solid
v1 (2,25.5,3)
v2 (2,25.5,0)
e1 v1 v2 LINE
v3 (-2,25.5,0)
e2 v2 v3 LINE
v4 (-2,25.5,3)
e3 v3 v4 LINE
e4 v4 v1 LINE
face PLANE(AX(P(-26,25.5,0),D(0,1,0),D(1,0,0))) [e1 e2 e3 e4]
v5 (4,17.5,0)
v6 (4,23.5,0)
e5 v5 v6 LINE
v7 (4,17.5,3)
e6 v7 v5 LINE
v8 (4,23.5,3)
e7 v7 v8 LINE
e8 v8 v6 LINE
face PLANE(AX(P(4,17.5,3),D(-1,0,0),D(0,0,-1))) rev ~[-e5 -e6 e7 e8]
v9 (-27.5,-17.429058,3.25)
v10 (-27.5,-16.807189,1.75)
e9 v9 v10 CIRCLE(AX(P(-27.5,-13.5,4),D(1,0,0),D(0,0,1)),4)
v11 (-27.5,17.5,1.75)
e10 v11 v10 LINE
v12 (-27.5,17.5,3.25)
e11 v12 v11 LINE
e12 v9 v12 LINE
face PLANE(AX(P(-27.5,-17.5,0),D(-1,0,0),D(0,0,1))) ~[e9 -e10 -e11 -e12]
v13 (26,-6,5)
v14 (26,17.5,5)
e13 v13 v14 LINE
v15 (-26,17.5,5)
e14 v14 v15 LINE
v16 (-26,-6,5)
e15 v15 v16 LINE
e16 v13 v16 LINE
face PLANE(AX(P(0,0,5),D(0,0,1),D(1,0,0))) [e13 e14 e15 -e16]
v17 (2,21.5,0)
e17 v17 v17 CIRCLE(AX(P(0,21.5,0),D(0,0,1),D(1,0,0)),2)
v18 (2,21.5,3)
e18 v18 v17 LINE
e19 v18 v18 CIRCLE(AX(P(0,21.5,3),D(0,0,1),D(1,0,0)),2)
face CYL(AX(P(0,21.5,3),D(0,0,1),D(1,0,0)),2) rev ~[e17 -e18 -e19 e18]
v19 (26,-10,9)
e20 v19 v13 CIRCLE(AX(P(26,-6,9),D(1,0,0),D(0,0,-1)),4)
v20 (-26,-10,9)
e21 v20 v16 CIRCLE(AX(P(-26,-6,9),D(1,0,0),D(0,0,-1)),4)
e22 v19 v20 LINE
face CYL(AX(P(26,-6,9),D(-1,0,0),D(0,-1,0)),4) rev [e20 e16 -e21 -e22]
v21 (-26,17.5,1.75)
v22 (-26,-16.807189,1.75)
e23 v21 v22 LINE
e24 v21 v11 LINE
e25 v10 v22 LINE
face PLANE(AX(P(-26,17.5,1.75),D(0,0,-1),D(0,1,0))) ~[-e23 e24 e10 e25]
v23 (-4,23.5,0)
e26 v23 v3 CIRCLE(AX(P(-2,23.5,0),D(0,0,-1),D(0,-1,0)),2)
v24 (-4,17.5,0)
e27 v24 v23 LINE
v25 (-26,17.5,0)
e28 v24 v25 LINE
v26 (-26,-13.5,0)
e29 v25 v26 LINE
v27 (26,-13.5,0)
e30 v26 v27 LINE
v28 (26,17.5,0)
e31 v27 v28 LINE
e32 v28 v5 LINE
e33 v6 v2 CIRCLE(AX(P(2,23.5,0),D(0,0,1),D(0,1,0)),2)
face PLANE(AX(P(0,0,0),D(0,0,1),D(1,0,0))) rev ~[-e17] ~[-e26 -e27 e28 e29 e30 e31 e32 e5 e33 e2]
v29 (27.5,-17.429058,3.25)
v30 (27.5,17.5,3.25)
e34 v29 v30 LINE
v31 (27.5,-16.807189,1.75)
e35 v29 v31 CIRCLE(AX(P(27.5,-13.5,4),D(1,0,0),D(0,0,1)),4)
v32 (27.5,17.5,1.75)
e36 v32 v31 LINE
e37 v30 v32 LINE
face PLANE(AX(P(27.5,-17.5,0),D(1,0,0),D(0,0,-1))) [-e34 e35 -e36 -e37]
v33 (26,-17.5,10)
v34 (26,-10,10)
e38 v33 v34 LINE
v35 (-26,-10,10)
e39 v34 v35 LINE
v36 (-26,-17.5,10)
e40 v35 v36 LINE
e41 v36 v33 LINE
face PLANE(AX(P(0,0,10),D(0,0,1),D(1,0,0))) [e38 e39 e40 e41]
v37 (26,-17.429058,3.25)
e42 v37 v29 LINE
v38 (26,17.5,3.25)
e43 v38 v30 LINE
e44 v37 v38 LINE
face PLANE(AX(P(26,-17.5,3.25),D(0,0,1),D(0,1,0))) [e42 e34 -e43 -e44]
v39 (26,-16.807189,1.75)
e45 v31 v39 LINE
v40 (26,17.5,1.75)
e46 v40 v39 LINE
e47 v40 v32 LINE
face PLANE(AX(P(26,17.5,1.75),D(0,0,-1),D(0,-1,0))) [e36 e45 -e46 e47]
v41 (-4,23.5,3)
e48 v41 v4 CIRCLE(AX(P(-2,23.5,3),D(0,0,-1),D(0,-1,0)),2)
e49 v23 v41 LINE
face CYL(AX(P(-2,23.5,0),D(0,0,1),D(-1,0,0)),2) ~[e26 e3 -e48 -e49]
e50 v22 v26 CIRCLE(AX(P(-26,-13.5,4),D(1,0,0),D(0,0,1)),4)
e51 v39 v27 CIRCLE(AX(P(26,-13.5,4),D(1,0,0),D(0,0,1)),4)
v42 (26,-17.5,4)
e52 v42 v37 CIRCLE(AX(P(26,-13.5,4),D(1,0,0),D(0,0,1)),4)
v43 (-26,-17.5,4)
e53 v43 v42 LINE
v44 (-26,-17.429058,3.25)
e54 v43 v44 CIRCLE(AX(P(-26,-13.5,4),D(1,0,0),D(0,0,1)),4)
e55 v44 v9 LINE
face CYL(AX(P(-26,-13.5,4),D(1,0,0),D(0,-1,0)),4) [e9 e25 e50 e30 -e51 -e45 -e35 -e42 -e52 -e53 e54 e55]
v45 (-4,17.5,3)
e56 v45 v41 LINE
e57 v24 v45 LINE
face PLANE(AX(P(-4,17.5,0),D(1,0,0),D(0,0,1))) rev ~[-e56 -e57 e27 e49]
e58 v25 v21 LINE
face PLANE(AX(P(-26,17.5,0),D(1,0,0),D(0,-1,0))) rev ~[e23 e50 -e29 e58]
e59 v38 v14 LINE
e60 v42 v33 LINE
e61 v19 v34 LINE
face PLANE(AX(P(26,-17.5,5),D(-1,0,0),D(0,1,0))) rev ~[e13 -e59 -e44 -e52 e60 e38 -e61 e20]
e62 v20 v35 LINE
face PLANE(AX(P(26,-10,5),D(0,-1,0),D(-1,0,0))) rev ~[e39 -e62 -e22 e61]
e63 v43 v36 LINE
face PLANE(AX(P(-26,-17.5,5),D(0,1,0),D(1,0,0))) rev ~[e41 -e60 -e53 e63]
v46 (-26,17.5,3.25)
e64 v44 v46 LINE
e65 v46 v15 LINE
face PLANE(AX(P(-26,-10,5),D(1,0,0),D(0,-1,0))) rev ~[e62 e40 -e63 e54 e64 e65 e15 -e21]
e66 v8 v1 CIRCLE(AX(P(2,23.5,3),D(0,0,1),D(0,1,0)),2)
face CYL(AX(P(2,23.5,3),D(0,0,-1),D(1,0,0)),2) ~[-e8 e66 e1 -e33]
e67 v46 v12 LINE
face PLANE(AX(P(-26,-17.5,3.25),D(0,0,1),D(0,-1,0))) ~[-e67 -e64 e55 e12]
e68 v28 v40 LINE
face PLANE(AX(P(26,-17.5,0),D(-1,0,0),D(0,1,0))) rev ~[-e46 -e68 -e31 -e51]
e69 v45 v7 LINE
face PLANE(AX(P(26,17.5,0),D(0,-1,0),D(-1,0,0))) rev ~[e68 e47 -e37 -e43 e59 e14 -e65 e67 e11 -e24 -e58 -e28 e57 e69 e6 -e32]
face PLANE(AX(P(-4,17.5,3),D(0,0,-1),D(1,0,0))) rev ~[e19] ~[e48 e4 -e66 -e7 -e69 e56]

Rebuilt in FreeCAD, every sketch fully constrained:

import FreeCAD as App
import Part
import Sketcher

V = App.Vector
Q = App.Units.Quantity


def edges_at(feature, points):
    """Names of the edges that pass closest to the given points."""
    edges = feature.Shape.Edges
    near = lambda p: min(range(len(edges)), key=lambda i: edges[i].distToShape(Part.Vertex(*p))[0])
    return sorted({f"Edge{near(p) + 1}" for p in points})

doc = App.newDocument("Part")
body = doc.addObject("PartDesign::Body", "Body")

sketch1 = body.newObject("Sketcher::SketchObject", "Sketch")
sketch1.AttachmentSupport = (doc.getObject("XY_Plane"), [""])
sketch1.MapMode = "FlatFace"
sketch1.addGeometry([
    Part.LineSegment(V(-26, 17.5, 0), V(-26, -17.5, 0)),
    Part.LineSegment(V(-26, -17.5, 0), V(26, -17.5, 0)),
    Part.LineSegment(V(26, -17.5, 0), V(26, 17.5, 0)),
    Part.LineSegment(V(26, 17.5, 0), V(-26, 17.5, 0)),
], False)
sketch1.addConstraint([
    Sketcher.Constraint("Coincident", 0, 2, 1, 1),
    Sketcher.Constraint("Coincident", 1, 2, 2, 1),
    Sketcher.Constraint("Coincident", 2, 2, 3, 1),
    Sketcher.Constraint("Coincident", 3, 2, 0, 1),
    Sketcher.Constraint("Vertical", 0),
    Sketcher.Constraint("Horizontal", 1),
    Sketcher.Constraint("Vertical", 2),
    Sketcher.Constraint("Horizontal", 3),
    Sketcher.Constraint("Symmetric", 0, 2, 2, 2, -1, 1),
    Sketcher.Constraint("DistanceX", 1, 1, 1, 2, Q("52 mm")),
    Sketcher.Constraint("DistanceY", 0, 2, 0, 1, Q("35 mm")),
])
pad1 = body.newObject("PartDesign::Pad", "Pad")
pad1.Profile = sketch1
pad1.Length = 5

sketch2 = body.newObject("Sketcher::SketchObject", "Sketch001")
sketch2.AttachmentSupport = (doc.getObject("YZ_Plane"), [""])
sketch2.MapMode = "FlatFace"
sketch2.AttachmentOffset = App.Placement(V(0, 0, 26), App.Rotation())
sketch2.addGeometry([
    Part.LineSegment(V(-17.5, 3.25, 0), V(-17.5, 1.75, 0)),
    Part.LineSegment(V(-17.5, 1.75, 0), V(17.5, 1.75, 0)),
    Part.LineSegment(V(17.5, 1.75, 0), V(17.5, 3.25, 0)),
    Part.LineSegment(V(17.5, 3.25, 0), V(-17.5, 3.25, 0)),
], False)
sketch2.addConstraint([
    Sketcher.Constraint("Coincident", 0, 2, 1, 1),
    Sketcher.Constraint("Coincident", 1, 2, 2, 1),
    Sketcher.Constraint("Coincident", 2, 2, 3, 1),
    Sketcher.Constraint("Coincident", 3, 2, 0, 1),
    Sketcher.Constraint("Vertical", 0),
    Sketcher.Constraint("Horizontal", 1),
    Sketcher.Constraint("Vertical", 2),
    Sketcher.Constraint("Horizontal", 3),
    Sketcher.Constraint("DistanceY", 0, 2, 0, 1, Q("1.5 mm")),
    Sketcher.Constraint("DistanceX", 1, 1, 1, 2, Q("35 mm")),
    Sketcher.Constraint("DistanceX", 0, 2, -1, 1, Q("17.5 mm")),
    Sketcher.Constraint("DistanceY", -1, 1, 0, 2, Q("1.75 mm")),
])
pad2 = body.newObject("PartDesign::Pad", "Pad001")
pad2.Profile = sketch2
pad2.Length = 1.5
doc.recompute()

mirrored = body.newObject("PartDesign::Mirrored", "Mirrored")
mirrored.Originals = [pad2]
mirrored.MirrorPlane = (doc.getObject("YZ_Plane"), [""])
body.Tip = mirrored

sketch3 = body.newObject("Sketcher::SketchObject", "Sketch002")
sketch3.AttachmentSupport = (doc.getObject("XY_Plane"), [""])
sketch3.MapMode = "FlatFace"
sketch3.AttachmentOffset = App.Placement(V(0, 0, 5), App.Rotation())
sketch3.addGeometry([
    Part.LineSegment(V(-26, -10, 0), V(-26, -17.5, 0)),
    Part.LineSegment(V(-26, -17.5, 0), V(26, -17.5, 0)),
    Part.LineSegment(V(26, -17.5, 0), V(26, -10, 0)),
    Part.LineSegment(V(26, -10, 0), V(-26, -10, 0)),
], False)
sketch3.addConstraint([
    Sketcher.Constraint("Coincident", 0, 2, 1, 1),
    Sketcher.Constraint("Coincident", 1, 2, 2, 1),
    Sketcher.Constraint("Coincident", 2, 2, 3, 1),
    Sketcher.Constraint("Coincident", 3, 2, 0, 1),
    Sketcher.Constraint("Vertical", 0),
    Sketcher.Constraint("Horizontal", 1),
    Sketcher.Constraint("Vertical", 2),
    Sketcher.Constraint("Horizontal", 3),
    Sketcher.Constraint("DistanceY", 0, 2, 0, 1, Q("7.5 mm")),
    Sketcher.Constraint("DistanceX", 1, 1, 1, 2, Q("52 mm")),
    Sketcher.Constraint("DistanceX", 0, 2, -1, 1, Q("26 mm")),
    Sketcher.Constraint("DistanceY", 2, 2, -1, 1, Q("10 mm")),
])
pad3 = body.newObject("PartDesign::Pad", "Pad002")
pad3.Profile = sketch3
pad3.Length = 5

sketch4 = body.newObject("Sketcher::SketchObject", "Sketch003")
sketch4.AttachmentSupport = (doc.getObject("XZ_Plane"), [""])
sketch4.MapMode = "FlatFace"
sketch4.AttachmentOffset = App.Placement(V(0, 0, -17.5), App.Rotation())
sketch4.addGeometry([
    Part.LineSegment(V(4, 3, 0), V(4, 0, 0)),
    Part.LineSegment(V(4, 0, 0), V(-4, 0, 0)),
    Part.LineSegment(V(-4, 0, 0), V(-4, 3, 0)),
    Part.LineSegment(V(-4, 3, 0), V(4, 3, 0)),
], False)
sketch4.addConstraint([
    Sketcher.Constraint("Coincident", 0, 2, 1, 1),
    Sketcher.Constraint("Coincident", 1, 2, 2, 1),
    Sketcher.Constraint("Coincident", 2, 2, 3, 1),
    Sketcher.Constraint("Coincident", 3, 2, 0, 1),
    Sketcher.Constraint("Vertical", 0),
    Sketcher.Constraint("Horizontal", 1),
    Sketcher.Constraint("Vertical", 2),
    Sketcher.Constraint("Horizontal", 3),
    Sketcher.Constraint("Symmetric", 0, 2, 1, 2, -1, 1),
    Sketcher.Constraint("DistanceX", 1, 2, 1, 1, Q("8 mm")),
    Sketcher.Constraint("DistanceY", 0, 2, 0, 1, Q("3 mm")),
])
pad4 = body.newObject("PartDesign::Pad", "Pad003")
pad4.Profile = sketch4
pad4.Length = 8
pad4.Reversed = True
doc.recompute()

fillet = body.newObject("PartDesign::Fillet", "Fillet")
fillet.Base = (pad4, edges_at(pad4, [(4, 25.5, 1.5), (-4, 25.5, 1.5)]))
fillet.Radius = 2
doc.recompute()

fillet2 = body.newObject("PartDesign::Fillet", "Fillet001")
fillet2.Base = (fillet, edges_at(fillet, [(0, -17.5, 0), (0, -10, 5)]))
fillet2.Radius = 4

sketch5 = body.newObject("Sketcher::SketchObject", "Sketch004")
sketch5.AttachmentSupport = (doc.getObject("XY_Plane"), [""])
sketch5.MapMode = "FlatFace"
sketch5.AttachmentOffset = App.Placement(V(0, 0, 3), App.Rotation())
sketch5.addGeometry(Part.Circle(V(0, 21.5, 0), V(0, 0, 1), 2), False)
sketch5.addConstraint([
    Sketcher.Constraint("PointOnObject", 0, 3, -2),
    Sketcher.Constraint("Diameter", 0, Q("4 mm")),
    Sketcher.Constraint("DistanceY", -1, 1, 0, 3, Q("21.5 mm")),
])
pocket1 = body.newObject("PartDesign::Pocket", "Pocket")
pocket1.Profile = sketch5
pocket1.Type = "ThroughAll"

doc.recompute()
